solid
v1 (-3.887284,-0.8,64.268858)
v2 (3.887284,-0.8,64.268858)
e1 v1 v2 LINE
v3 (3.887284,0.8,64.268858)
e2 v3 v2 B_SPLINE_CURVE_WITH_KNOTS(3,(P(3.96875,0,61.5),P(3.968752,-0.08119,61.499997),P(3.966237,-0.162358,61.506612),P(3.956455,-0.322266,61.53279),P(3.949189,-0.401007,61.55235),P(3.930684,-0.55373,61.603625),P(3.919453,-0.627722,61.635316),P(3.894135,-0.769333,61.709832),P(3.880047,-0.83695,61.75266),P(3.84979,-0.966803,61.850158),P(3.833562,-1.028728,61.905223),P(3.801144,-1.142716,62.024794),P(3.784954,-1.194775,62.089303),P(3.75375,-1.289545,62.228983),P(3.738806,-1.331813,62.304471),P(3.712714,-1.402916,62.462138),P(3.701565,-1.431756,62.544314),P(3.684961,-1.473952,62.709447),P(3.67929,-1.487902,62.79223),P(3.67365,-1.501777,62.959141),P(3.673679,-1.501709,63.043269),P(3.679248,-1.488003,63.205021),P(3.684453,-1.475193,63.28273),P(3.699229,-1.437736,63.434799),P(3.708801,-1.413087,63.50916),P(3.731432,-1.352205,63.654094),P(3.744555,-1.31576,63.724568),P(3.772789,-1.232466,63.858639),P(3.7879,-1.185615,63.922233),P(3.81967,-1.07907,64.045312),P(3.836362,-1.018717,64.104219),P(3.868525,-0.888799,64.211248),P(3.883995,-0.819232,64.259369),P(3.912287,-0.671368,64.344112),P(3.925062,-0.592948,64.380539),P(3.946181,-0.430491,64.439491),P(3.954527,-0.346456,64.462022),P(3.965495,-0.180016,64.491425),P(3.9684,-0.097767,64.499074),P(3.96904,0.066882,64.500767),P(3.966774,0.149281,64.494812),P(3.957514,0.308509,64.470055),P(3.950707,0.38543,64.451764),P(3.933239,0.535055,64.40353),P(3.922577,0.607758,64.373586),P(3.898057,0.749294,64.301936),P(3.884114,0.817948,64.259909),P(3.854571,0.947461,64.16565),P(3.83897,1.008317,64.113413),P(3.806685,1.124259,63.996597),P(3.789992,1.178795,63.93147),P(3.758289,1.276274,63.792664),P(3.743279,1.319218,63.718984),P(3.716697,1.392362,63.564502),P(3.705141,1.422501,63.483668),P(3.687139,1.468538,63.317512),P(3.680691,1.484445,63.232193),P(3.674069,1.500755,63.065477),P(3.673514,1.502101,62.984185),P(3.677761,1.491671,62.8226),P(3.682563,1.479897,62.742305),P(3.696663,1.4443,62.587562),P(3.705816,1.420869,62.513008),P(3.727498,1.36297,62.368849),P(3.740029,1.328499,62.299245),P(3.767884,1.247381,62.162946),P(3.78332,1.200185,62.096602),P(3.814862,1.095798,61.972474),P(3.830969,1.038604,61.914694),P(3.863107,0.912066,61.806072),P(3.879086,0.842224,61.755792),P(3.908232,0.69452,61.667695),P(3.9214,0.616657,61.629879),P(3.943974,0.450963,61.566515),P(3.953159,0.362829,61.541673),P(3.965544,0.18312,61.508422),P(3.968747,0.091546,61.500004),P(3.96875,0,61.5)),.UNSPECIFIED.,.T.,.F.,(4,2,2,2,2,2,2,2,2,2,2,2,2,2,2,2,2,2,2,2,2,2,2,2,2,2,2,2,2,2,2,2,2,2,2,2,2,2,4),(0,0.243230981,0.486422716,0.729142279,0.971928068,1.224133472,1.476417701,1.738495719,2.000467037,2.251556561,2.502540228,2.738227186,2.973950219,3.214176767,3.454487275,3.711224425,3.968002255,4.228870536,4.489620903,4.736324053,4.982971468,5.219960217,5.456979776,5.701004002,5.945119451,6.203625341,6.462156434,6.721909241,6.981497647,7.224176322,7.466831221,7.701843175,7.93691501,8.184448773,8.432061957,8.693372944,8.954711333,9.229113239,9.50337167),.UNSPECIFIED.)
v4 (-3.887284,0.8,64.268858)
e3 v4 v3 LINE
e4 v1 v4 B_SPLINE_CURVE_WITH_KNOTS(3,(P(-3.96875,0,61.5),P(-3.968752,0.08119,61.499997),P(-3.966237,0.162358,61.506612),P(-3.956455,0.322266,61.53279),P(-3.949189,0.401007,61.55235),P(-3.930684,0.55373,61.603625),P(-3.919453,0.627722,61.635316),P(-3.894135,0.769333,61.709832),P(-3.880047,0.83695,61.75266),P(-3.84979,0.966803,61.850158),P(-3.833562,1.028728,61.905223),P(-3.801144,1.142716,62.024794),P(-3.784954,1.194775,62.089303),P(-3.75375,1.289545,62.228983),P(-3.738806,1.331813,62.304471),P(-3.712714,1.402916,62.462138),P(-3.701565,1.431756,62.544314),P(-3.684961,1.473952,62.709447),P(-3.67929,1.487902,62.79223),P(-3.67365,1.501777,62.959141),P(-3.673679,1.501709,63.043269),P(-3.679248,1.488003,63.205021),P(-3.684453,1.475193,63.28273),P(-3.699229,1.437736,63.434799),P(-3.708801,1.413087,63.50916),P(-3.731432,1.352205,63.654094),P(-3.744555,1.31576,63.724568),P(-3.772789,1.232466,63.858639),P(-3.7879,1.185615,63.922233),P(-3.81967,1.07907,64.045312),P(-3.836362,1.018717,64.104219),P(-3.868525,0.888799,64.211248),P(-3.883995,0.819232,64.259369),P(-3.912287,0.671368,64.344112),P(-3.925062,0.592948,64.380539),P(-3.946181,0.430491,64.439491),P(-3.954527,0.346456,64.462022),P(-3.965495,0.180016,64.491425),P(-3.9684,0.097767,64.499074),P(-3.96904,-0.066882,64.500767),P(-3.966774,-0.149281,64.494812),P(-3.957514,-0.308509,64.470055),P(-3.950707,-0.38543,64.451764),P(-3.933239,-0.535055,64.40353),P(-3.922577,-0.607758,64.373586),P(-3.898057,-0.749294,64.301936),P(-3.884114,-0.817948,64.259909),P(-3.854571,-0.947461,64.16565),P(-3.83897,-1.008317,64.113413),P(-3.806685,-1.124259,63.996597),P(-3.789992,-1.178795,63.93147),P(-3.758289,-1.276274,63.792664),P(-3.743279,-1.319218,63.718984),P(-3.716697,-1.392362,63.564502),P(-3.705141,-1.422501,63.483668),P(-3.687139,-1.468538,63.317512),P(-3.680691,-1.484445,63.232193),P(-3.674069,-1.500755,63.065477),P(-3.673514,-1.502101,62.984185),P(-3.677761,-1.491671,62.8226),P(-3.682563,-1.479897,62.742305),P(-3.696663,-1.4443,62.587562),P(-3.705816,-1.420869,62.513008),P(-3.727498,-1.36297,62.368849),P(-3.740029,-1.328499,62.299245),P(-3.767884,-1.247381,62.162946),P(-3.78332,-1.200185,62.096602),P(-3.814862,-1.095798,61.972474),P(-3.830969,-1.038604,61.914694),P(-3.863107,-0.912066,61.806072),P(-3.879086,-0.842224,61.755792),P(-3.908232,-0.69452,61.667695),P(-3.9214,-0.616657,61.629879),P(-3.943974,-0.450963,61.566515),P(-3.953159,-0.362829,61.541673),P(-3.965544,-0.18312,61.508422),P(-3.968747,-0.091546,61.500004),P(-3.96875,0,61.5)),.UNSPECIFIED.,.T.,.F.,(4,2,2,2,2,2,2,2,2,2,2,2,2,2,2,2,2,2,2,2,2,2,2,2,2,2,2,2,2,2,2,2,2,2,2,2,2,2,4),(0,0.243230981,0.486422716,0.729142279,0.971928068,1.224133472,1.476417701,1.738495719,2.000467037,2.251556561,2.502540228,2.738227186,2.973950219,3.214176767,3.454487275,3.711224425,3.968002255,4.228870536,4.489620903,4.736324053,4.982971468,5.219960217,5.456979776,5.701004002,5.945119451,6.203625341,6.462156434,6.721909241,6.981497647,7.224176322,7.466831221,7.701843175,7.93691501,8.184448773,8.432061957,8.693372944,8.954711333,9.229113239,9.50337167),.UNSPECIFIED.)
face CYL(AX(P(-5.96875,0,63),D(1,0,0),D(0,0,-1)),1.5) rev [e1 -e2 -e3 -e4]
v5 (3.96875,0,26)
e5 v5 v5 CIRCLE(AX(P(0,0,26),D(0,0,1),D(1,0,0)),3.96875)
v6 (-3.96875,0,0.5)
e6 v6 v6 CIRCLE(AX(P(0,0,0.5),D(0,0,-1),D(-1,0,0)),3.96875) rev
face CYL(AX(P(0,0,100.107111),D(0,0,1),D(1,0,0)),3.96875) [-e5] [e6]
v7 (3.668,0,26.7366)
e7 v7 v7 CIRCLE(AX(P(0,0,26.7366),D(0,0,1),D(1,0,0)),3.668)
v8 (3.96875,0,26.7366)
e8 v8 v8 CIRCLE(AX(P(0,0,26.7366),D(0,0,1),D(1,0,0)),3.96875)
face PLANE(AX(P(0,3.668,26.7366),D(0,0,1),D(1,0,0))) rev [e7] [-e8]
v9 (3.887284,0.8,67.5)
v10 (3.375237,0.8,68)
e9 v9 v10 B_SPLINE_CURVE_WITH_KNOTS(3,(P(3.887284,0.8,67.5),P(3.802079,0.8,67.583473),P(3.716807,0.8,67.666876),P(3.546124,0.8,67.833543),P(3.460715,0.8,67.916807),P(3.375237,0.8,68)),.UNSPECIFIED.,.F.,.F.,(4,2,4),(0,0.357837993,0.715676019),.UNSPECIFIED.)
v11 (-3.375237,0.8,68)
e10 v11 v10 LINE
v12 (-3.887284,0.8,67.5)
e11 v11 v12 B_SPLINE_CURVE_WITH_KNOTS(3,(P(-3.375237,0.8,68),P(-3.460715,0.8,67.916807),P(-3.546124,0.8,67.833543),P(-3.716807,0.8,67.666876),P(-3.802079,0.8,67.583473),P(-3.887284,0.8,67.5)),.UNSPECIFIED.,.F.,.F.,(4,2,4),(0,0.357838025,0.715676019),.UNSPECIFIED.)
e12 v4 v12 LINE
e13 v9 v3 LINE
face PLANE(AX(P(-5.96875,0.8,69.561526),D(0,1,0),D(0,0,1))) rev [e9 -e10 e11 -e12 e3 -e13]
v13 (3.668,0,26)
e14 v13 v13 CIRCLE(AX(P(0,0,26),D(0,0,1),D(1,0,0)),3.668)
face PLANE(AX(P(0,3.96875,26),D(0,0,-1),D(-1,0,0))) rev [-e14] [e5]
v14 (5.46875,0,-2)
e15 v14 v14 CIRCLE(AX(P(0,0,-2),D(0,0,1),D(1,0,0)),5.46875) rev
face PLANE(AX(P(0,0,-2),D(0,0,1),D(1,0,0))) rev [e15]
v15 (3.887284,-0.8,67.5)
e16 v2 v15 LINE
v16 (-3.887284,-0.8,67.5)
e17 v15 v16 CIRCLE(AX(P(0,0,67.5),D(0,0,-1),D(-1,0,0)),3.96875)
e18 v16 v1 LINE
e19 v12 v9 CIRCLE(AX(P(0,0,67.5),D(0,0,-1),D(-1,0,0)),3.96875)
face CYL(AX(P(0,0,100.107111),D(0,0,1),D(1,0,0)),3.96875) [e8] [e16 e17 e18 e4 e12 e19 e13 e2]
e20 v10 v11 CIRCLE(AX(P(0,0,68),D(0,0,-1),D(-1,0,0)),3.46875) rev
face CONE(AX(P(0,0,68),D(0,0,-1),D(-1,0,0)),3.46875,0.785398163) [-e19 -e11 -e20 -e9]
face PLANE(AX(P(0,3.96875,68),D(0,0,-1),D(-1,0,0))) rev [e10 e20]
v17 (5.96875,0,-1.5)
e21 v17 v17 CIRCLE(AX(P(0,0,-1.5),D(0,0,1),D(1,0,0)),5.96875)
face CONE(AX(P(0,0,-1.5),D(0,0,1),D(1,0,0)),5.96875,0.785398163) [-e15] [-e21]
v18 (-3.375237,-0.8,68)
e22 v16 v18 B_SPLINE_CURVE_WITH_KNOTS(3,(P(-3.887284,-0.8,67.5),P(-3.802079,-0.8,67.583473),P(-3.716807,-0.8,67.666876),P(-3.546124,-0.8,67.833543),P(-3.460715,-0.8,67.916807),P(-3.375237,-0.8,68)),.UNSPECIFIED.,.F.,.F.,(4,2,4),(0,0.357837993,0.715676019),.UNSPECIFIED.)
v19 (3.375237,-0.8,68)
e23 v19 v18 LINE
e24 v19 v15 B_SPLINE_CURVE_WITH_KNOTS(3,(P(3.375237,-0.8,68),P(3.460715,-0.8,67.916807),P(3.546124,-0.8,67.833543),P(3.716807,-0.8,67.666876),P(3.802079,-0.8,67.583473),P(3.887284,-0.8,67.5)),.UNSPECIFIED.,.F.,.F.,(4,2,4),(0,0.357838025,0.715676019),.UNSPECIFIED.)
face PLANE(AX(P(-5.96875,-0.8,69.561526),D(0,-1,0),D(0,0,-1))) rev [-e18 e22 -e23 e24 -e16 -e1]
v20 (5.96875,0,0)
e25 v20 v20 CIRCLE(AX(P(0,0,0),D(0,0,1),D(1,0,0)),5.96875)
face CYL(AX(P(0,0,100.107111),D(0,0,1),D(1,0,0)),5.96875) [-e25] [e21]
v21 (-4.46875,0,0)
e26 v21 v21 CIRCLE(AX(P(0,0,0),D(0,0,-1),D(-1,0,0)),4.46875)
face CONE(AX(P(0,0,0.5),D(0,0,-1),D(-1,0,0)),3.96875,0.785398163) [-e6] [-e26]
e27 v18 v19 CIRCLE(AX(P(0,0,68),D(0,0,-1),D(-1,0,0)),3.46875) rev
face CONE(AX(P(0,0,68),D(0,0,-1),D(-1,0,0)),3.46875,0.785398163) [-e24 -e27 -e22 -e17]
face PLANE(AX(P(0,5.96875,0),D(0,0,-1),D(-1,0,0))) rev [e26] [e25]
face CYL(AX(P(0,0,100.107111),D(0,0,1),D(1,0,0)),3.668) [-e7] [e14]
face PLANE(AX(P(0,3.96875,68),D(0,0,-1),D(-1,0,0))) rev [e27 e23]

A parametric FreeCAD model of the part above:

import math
import FreeCAD as App
import Part
import Sketcher
Q = App.Units.Quantity


def edges_at(feature, points):
    """Names of the edges that pass closest to the given points."""
    edges = feature.Shape.Edges
    near = lambda p: min(range(len(edges)), key=lambda i: edges[i].distToShape(Part.Vertex(*p))[0])
    return sorted({f"Edge{near(p) + 1}" for p in points})

doc = App.newDocument("Part")
body = doc.addObject("PartDesign::Body", "Body")

# Sketch on YZ plane
sketch1 = body.newObject("Sketcher::SketchObject", "Sketch")
sketch1.AttachmentSupport = (doc.getObject("YZ_Plane"), [""])
sketch1.MapMode = "FlatFace"
sketch1.addGeometry([
    Part.LineSegment(App.Vector(3.97, 0, 0), App.Vector(3.97, 26, 0)),  # 0
    Part.LineSegment(App.Vector(3.97, 26, 0), App.Vector(3.67, 26, 0)),  # 1
    Part.LineSegment(App.Vector(3.67, 26, 0), App.Vector(3.67, 26.74, 0)),  # 2
    Part.LineSegment(App.Vector(3.67, 26.74, 0), App.Vector(3.97, 26.74, 0)),  # 3
    Part.LineSegment(App.Vector(3.97, 26.74, 0), App.Vector(3.97, 68, 0)),  # 4
    Part.LineSegment(App.Vector(3.97, 68, 0), App.Vector(0, 68, 0)),  # 5
    Part.LineSegment(App.Vector(0, 68, 0), App.Vector(0, -2, 0)),  # 6
    Part.LineSegment(App.Vector(0, -2, 0), App.Vector(5.97, -2, 0)),  # 7
    Part.LineSegment(App.Vector(5.97, -2, 0), App.Vector(5.97, 0, 0)),  # 8
    Part.LineSegment(App.Vector(5.97, 0, 0), App.Vector(3.97, 0, 0)),  # 9
], False)
sketch1.addConstraint([
    Sketcher.Constraint("Coincident", 0, 2, 1, 1),
    Sketcher.Constraint("Coincident", 1, 2, 2, 1),
    Sketcher.Constraint("Coincident", 2, 2, 3, 1),
    Sketcher.Constraint("Coincident", 3, 2, 4, 1),
    Sketcher.Constraint("Coincident", 4, 2, 5, 1),
    Sketcher.Constraint("Coincident", 5, 2, 6, 1),
    Sketcher.Constraint("Coincident", 6, 2, 7, 1),
    Sketcher.Constraint("Coincident", 7, 2, 8, 1),
    Sketcher.Constraint("Coincident", 8, 2, 9, 1),
    Sketcher.Constraint("Coincident", 9, 2, 0, 1),
    Sketcher.Constraint("Vertical", 0),
    Sketcher.Constraint("Horizontal", 1),
    Sketcher.Constraint("Vertical", 2),
    Sketcher.Constraint("Horizontal", 3),
    Sketcher.Constraint("Vertical", 4),
    Sketcher.Constraint("Horizontal", 5),
    Sketcher.Constraint("Vertical", 6),
    Sketcher.Constraint("Horizontal", 7),
    Sketcher.Constraint("Vertical", 8),
    Sketcher.Constraint("Horizontal", 9),
    Sketcher.Constraint("PointOnObject", 5, 2, -2),
    Sketcher.Constraint("PointOnObject", 8, 2, -1),
    Sketcher.Constraint("Vertical", 0, 2, 3, 2),
    Sketcher.Constraint("Equal", 9, 8),
    Sketcher.Constraint("DistanceX", 9, 2, 9, 1, Q("2 mm")),
    Sketcher.Constraint("DistanceY", 0, 1, 0, 2, Q("26 mm")),
    Sketcher.Constraint("DistanceY", 6, 2, 6, 1, Q("70 mm")),
    Sketcher.Constraint("DistanceY", 2, 1, 2, 2, Q("0.7366 mm")),
    Sketcher.Constraint("DistanceX", -1, 1, 1, 2, Q("3.668 mm")),
    Sketcher.Constraint("DistanceX", 1, 2, 1, 1, Q("0.30075 mm")),
])
revolution = body.newObject("PartDesign::Revolution", "Revolution")
revolution.Profile = sketch1
revolution.ReferenceAxis = (sketch1, ["V_Axis"])
revolution.Angle = 360

# Sketch on YZ plane
sketch2 = body.newObject("Sketcher::SketchObject", "Sketch001")
sketch2.AttachmentSupport = (doc.getObject("YZ_Plane"), [""])
sketch2.MapMode = "FlatFace"
sketch2.addGeometry([
    Part.LineSegment(App.Vector(0.8, 64.3, 0), App.Vector(0.8, 69.6, 0)),
    Part.LineSegment(App.Vector(0.8, 69.6, 0), App.Vector(-0.8, 69.6, 0)),
    Part.LineSegment(App.Vector(-0.8, 69.6, 0), App.Vector(-0.8, 64.3, 0)),
    Part.ArcOfCircle(Part.Circle(App.Vector(0, 63, 0), App.Vector(0, 0, 1), 1.5), math.radians(122), math.radians(418)),
], False)
sketch2.addConstraint([
    Sketcher.Constraint("Coincident", 0, 2, 1, 1),
    Sketcher.Constraint("Coincident", 1, 2, 2, 1),
    Sketcher.Constraint("Coincident", 2, 2, 3, 1),
    Sketcher.Constraint("Coincident", 3, 2, 0, 1),
    Sketcher.Constraint("Vertical", 0),
    Sketcher.Constraint("Horizontal", 1),
    Sketcher.Constraint("Vertical", 2),
    Sketcher.Constraint("Symmetric", 2, 2, 3, 2, -2),
    Sketcher.Constraint("Radius", 3, Q("1.5 mm")),
    Sketcher.Constraint("DistanceX", 1, 2, 1, 1, Q("1.6 mm")),
    Sketcher.Constraint("DistanceY", -1, 1, 3, 3, Q("63 mm")),
    Sketcher.Constraint("DistanceY", 0, 1, 0, 2, Q("5.292669 mm")),
])
pocket1 = body.newObject("PartDesign::Pocket", "Pocket")
pocket1.Profile = sketch2
pocket1.Type = "ThroughAll"
pocket1.Midplane = True
doc.recompute()

chamfer = body.newObject("PartDesign::Chamfer", "Chamfer")
chamfer.Base = (pocket1, edges_at(pocket1, [
    (2.508, 3.076, 68),
    (0, -5.969, -2),
    (0, -3.969, 68),
    (0, -3.969, 0),
]))
chamfer.Size = 0.5

doc.recompute()
